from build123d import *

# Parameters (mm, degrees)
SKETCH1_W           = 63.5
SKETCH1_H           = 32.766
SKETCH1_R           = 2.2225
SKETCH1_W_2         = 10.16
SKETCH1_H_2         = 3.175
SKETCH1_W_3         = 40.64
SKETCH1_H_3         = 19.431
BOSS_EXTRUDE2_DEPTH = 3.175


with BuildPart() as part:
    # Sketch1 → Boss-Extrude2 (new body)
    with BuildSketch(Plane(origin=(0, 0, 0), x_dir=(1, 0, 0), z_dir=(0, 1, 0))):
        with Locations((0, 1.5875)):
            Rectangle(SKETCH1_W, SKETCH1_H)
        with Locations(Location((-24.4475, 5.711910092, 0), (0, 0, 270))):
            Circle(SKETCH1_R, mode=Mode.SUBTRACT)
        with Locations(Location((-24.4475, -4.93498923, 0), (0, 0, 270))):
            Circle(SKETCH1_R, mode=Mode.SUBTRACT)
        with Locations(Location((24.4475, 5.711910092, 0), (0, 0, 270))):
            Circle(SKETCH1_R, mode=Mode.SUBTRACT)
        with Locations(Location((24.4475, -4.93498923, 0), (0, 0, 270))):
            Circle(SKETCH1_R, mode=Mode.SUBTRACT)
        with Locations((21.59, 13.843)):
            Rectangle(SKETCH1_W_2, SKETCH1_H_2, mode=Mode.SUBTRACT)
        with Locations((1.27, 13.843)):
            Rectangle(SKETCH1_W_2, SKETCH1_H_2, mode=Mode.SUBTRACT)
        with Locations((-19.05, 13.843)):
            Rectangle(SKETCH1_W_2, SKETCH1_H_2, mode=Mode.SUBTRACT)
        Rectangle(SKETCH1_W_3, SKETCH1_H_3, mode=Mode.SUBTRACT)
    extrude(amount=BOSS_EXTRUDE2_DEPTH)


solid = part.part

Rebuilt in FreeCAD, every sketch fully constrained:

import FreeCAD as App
import Part
import Sketcher
from FreeCAD import Vector
Q = App.Units.Quantity


def add_polygon(sketch, points):
    """Adds a closed chain of lines whose ends are joined by coincident constraints."""
    first, n = sketch.GeometryCount, len(points)
    for a, b in zip(points, points[1:] + points[:1]):
        sketch.addGeometry(Part.LineSegment(App.Vector(*a, 0), App.Vector(*b, 0)), False)
    for i in range(n):
        sketch.addConstraint(Sketcher.Constraint("Coincident", first + i, 2, first + (i + 1) % n, 1))

doc = App.newDocument("Part")
body = doc.addObject("PartDesign::Body", "Body")

sketch1 = doc.addObject("Sketcher::SketchObject", "Sketch")
body.addObject(sketch1)
sketch1.AttachmentSupport = (doc.XZ_Plane, [""])
sketch1.MapMode = "FlatFace"
add_polygon(sketch1, [(-31.8, -18), (-31.8, 14.8), (31.8, 14.8), (31.8, -18)])
sketch1.addGeometry(Part.Circle(Vector(-24.4, 4.9, 0), Vector(0, 0, 1), 2.2), False)
add_polygon(sketch1, [(20.3, 9.7), (-20.3, 9.7), (-20.3, -9.7), (20.3, -9.7)])
sketch1.addGeometry(Part.Circle(Vector(24.4, 4.9, 0), Vector(0, 0, 1), 2.2), False)
sketch1.addGeometry(Part.Circle(Vector(-24.4, -5.7, 0), Vector(0, 0, 1), 2.2), False)
add_polygon(sketch1, [(-14, -12.3), (-24.1, -12.3), (-24.1, -15.4), (-14, -15.4)])
sketch1.addGeometry(Part.Circle(Vector(24.4, -5.7, 0), Vector(0, 0, 1), 2.2), False)
add_polygon(sketch1, [(6.3, -12.3), (-3.8, -12.3), (-3.8, -15.4), (6.3, -15.4)])
add_polygon(sketch1, [(26.7, -12.3), (16.5, -12.3), (16.5, -15.4), (26.7, -15.4)])
sketch1.addConstraint([
    Sketcher.Constraint("Vertical", 0),
    Sketcher.Constraint("Horizontal", 1),
    Sketcher.Constraint("Vertical", 2),
    Sketcher.Constraint("Horizontal", 3),
    Sketcher.Constraint("Horizontal", 5),
    Sketcher.Constraint("Vertical", 6),
    Sketcher.Constraint("Horizontal", 7),
    Sketcher.Constraint("Vertical", 8),
    Sketcher.Constraint("Horizontal", 11),
    Sketcher.Constraint("Vertical", 12),
    Sketcher.Constraint("Horizontal", 13),
    Sketcher.Constraint("Vertical", 14),
    Sketcher.Constraint("Horizontal", 16),
    Sketcher.Constraint("Vertical", 17),
    Sketcher.Constraint("Horizontal", 18),
    Sketcher.Constraint("Vertical", 19),
    Sketcher.Constraint("Horizontal", 20),
    Sketcher.Constraint("Vertical", 21),
    Sketcher.Constraint("Horizontal", 22),
    Sketcher.Constraint("Vertical", 23),
    Sketcher.Constraint("Equal", 4, 9),
    Sketcher.Constraint("Equal", 9, 10),
    Sketcher.Constraint("Equal", 10, 15),
    Sketcher.Constraint("Symmetric", 5, 2, 7, 2, -1, 1),
    Sketcher.Constraint("Symmetric", 4, 3, 9, 3, -2),
    Sketcher.Constraint("Symmetric", 10, 3, 15, 3, -2),
    Sketcher.Constraint("Horizontal", 14, 2, 16, 2),
    Sketcher.Constraint("Horizontal", 13, 2, 17, 2),
    Sketcher.Constraint("Horizontal", 19, 2, 20, 2),
    Sketcher.Constraint("Horizontal", 18, 2, 21, 2),
    Sketcher.Constraint("Vertical", 4, 3, 10, 3),
    Sketcher.Constraint("Equal", 13, 16),
    Sketcher.Constraint("Equal", 18, 20),
    Sketcher.Constraint("Diameter", 4, Q("0.175 in")),
    Sketcher.Constraint("DistanceX", 1, 1, 1, 2, Q("2.5 in")),
    Sketcher.Constraint("DistanceX", 5, 2, 5, 1, Q("1.6 in")),
    Sketcher.Constraint("DistanceX", 11, 2, 11, 1, Q("0.4 in")),
    Sketcher.Constraint("DistanceY", 0, 1, 0, 2, Q("1.29 in")),
    Sketcher.Constraint("DistanceY", 5, 2, 0, 2, Q("0.2 in")),
    Sketcher.Constraint("DistanceY", 11, 2, 6, 2, Q("0.1 in")),
    Sketcher.Constraint("DistanceX", 3, 2, 11, 2, Q("0.3 in")),
    Sketcher.Constraint("DistanceY", 3, 2, 12, 2, Q("0.1 in")),
    Sketcher.Constraint("DistanceX", 14, 2, 16, 2, Q("0.4 in")),
    Sketcher.Constraint("DistanceX", 19, 2, 20, 2, Q("0.4 in")),
    Sketcher.Constraint("DistanceY", 6, 2, 6, 1, Q("0.765 in")),
    Sketcher.Constraint("DistanceX", 0, 2, -1, 1, Q("1.25 in")),
    Sketcher.Constraint("DistanceX", 4, 3, 9, 3, Q("1.925 in")),
    Sketcher.Constraint("DistanceY", 10, 3, 4, 3, 10.646899),
    Sketcher.Constraint("DistanceY", -1, 1, 4, 3, 4.934989),
])
pad1 = doc.addObject("PartDesign::Pad", "Pad")
body.addObject(pad1)
pad1.Profile = sketch1
pad1.Length = Q("0.125 in")
pad1.Reversed = True

doc.recompute()
